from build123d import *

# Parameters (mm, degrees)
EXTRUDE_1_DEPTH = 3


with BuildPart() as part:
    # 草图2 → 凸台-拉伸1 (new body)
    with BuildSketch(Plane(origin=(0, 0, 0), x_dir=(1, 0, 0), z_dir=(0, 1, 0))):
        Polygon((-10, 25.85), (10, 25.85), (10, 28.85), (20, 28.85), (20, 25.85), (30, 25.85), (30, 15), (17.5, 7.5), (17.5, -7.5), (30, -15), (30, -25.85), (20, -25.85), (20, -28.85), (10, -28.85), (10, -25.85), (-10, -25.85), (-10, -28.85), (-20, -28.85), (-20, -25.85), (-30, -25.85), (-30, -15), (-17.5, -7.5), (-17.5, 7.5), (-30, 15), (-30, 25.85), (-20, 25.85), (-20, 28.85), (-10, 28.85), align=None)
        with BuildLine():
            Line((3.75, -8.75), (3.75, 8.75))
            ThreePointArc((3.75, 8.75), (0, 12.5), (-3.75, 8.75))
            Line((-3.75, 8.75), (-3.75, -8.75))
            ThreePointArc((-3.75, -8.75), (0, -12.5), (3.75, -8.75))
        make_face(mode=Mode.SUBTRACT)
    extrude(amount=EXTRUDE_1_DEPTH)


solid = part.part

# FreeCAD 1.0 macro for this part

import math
import FreeCAD as App
import Part
import Sketcher
from FreeCAD import Vector
Q = App.Units.Quantity

doc = App.newDocument("Part")
body = doc.addObject("PartDesign::Body", "Body")

# Sketch on XZ plane
sketch1 = body.newObject("Sketcher::SketchObject", "Sketch")
sketch1.AttachmentSupport = (doc.getObject("XZ_Plane"), [""])
sketch1.MapMode = "FlatFace"
sketch1.addGeometry([
    Part.LineSegment(Vector(10, -25.9, 0), Vector(-10, -25.9, 0)),  # 0
    Part.LineSegment(Vector(-10, -25.9, 0), Vector(-10, -28.9, 0)),  # 1
    Part.LineSegment(Vector(-10, -28.9, 0), Vector(-20, -28.9, 0)),  # 2
    Part.LineSegment(Vector(-20, -28.9, 0), Vector(-20, -25.9, 0)),  # 3
    Part.LineSegment(Vector(-20, -25.9, 0), Vector(-30, -25.9, 0)),  # 4
    Part.LineSegment(Vector(-30, -25.9, 0), Vector(-30, -15, 0)),  # 5
    Part.LineSegment(Vector(-30, -15, 0), Vector(-17.5, -7.5, 0)),  # 6
    Part.LineSegment(Vector(-17.5, -7.5, 0), Vector(-17.5, 7.5, 0)),  # 7
    Part.LineSegment(Vector(-17.5, 7.5, 0), Vector(-30, 15, 0)),  # 8
    Part.LineSegment(Vector(-30, 15, 0), Vector(-30, 25.9, 0)),  # 9
    Part.LineSegment(Vector(-30, 25.9, 0), Vector(-20, 25.9, 0)),  # 10
    Part.LineSegment(Vector(-20, 25.9, 0), Vector(-20, 28.9, 0)),  # 11
    Part.LineSegment(Vector(-20, 28.9, 0), Vector(-10, 28.9, 0)),  # 12
    Part.LineSegment(Vector(-10, 28.9, 0), Vector(-10, 25.9, 0)),  # 13
    Part.LineSegment(Vector(-10, 25.9, 0), Vector(10, 25.9, 0)),  # 14
    Part.LineSegment(Vector(10, 25.9, 0), Vector(10, 28.9, 0)),  # 15
    Part.LineSegment(Vector(10, 28.9, 0), Vector(20, 28.9, 0)),  # 16
    Part.LineSegment(Vector(20, 28.9, 0), Vector(20, 25.9, 0)),  # 17
    Part.LineSegment(Vector(20, 25.9, 0), Vector(30, 25.9, 0)),  # 18
    Part.LineSegment(Vector(30, 25.9, 0), Vector(30, 15, 0)),  # 19
    Part.LineSegment(Vector(30, 15, 0), Vector(17.5, 7.5, 0)),  # 20
    Part.LineSegment(Vector(17.5, 7.5, 0), Vector(17.5, -7.5, 0)),  # 21
    Part.LineSegment(Vector(17.5, -7.5, 0), Vector(30, -15, 0)),  # 22
    Part.LineSegment(Vector(30, -15, 0), Vector(30, -25.9, 0)),  # 23
    Part.LineSegment(Vector(30, -25.9, 0), Vector(20, -25.9, 0)),  # 24
    Part.LineSegment(Vector(20, -25.9, 0), Vector(20, -28.9, 0)),  # 25
    Part.LineSegment(Vector(20, -28.9, 0), Vector(10, -28.9, 0)),  # 26
    Part.LineSegment(Vector(10, -28.9, 0), Vector(10, -25.9, 0)),  # 27
    Part.ArcOfCircle(Part.Circle(Vector(0, 8.8, 0), Vector(0, 0, 1), 3.8), math.radians(0), math.radians(180)),  # 28
    Part.LineSegment(Vector(-3.8, 8.8, 0), Vector(-3.8, -8.8, 0)),  # 29
    Part.ArcOfCircle(Part.Circle(Vector(0, -8.8, 0), Vector(0, 0, 1), 3.8), math.radians(180), math.radians(360)),  # 30
    Part.LineSegment(Vector(3.8, -8.8, 0), Vector(3.8, 8.8, 0)),  # 31
], False)
sketch1.addConstraint([
    Sketcher.Constraint("Coincident", 0, 2, 1, 1),
    Sketcher.Constraint("Coincident", 1, 2, 2, 1),
    Sketcher.Constraint("Coincident", 2, 2, 3, 1),
    Sketcher.Constraint("Coincident", 3, 2, 4, 1),
    Sketcher.Constraint("Coincident", 4, 2, 5, 1),
    Sketcher.Constraint("Coincident", 5, 2, 6, 1),
    Sketcher.Constraint("Coincident", 6, 2, 7, 1),
    Sketcher.Constraint("Coincident", 7, 2, 8, 1),
    Sketcher.Constraint("Coincident", 8, 2, 9, 1),
    Sketcher.Constraint("Coincident", 9, 2, 10, 1),
    Sketcher.Constraint("Coincident", 10, 2, 11, 1),
    Sketcher.Constraint("Coincident", 11, 2, 12, 1),
    Sketcher.Constraint("Coincident", 12, 2, 13, 1),
    Sketcher.Constraint("Coincident", 13, 2, 14, 1),
    Sketcher.Constraint("Coincident", 14, 2, 15, 1),
    Sketcher.Constraint("Coincident", 15, 2, 16, 1),
    Sketcher.Constraint("Coincident", 16, 2, 17, 1),
    Sketcher.Constraint("Coincident", 17, 2, 18, 1),
    Sketcher.Constraint("Coincident", 18, 2, 19, 1),
    Sketcher.Constraint("Coincident", 19, 2, 20, 1),
    Sketcher.Constraint("Coincident", 20, 2, 21, 1),
    Sketcher.Constraint("Coincident", 21, 2, 22, 1),
    Sketcher.Constraint("Coincident", 22, 2, 23, 1),
    Sketcher.Constraint("Coincident", 23, 2, 24, 1),
    Sketcher.Constraint("Coincident", 24, 2, 25, 1),
    Sketcher.Constraint("Coincident", 25, 2, 26, 1),
    Sketcher.Constraint("Coincident", 26, 2, 27, 1),
    Sketcher.Constraint("Coincident", 27, 2, 0, 1),
    Sketcher.Constraint("Tangent", 28, 2, 29, 1),
    Sketcher.Constraint("Tangent", 29, 2, 30, 1),
    Sketcher.Constraint("Tangent", 30, 2, 31, 1),
    Sketcher.Constraint("Tangent", 31, 2, 28, 1),
    Sketcher.Constraint("Horizontal", 0),
    Sketcher.Constraint("Vertical", 1),
    Sketcher.Constraint("Horizontal", 2),
    Sketcher.Constraint("Vertical", 3),
    Sketcher.Constraint("Horizontal", 4),
    Sketcher.Constraint("Vertical", 5),
    Sketcher.Constraint("Vertical", 7),
    Sketcher.Constraint("Vertical", 9),
    Sketcher.Constraint("Horizontal", 10),
    Sketcher.Constraint("Vertical", 11),
    Sketcher.Constraint("Horizontal", 12),
    Sketcher.Constraint("Vertical", 13),
    Sketcher.Constraint("Horizontal", 14),
    Sketcher.Constraint("Vertical", 15),
    Sketcher.Constraint("Horizontal", 16),
    Sketcher.Constraint("Vertical", 17),
    Sketcher.Constraint("Horizontal", 18),
    Sketcher.Constraint("Vertical", 19),
    Sketcher.Constraint("Vertical", 21),
    Sketcher.Constraint("Vertical", 23),
    Sketcher.Constraint("Horizontal", 24),
    Sketcher.Constraint("Vertical", 25),
    Sketcher.Constraint("Horizontal", 26),
    Sketcher.Constraint("Vertical", 27),
    Sketcher.Constraint("Vertical", 29),
    Sketcher.Constraint("Vertical", 31),
    Sketcher.Constraint("Symmetric", 28, 3, 30, 3, -1, 1),
    Sketcher.Constraint("Symmetric", 0, 2, 14, 2, -1, 1),
    Sketcher.Constraint("Symmetric", 2, 2, 16, 2, -1, 1),
    Sketcher.Constraint("Symmetric", 4, 2, 18, 2, -1, 1),
    Sketcher.Constraint("Symmetric", 6, 2, 20, 2, -1, 1),
    Sketcher.Constraint("Symmetric", 8, 2, 22, 2, -1, 1),
    Sketcher.Constraint("Symmetric", 10, 2, 24, 2, -1, 1),
    Sketcher.Constraint("Symmetric", 12, 2, 26, 2, -1, 1),
    Sketcher.Constraint("Symmetric", 12, 2, 15, 2, -2),
    Sketcher.Constraint("Symmetric", 10, 2, 17, 2, -2),
    Sketcher.Constraint("Symmetric", 8, 2, 19, 2, -2),
    Sketcher.Constraint("Parallel", 6, 20),
    Sketcher.Constraint("Parallel", 8, 22),
    Sketcher.Constraint("Horizontal", 0, 2, 3, 2),
    Sketcher.Constraint("Horizontal", 7, 2, 20, 2),
    Sketcher.Constraint("Equal", 2, 4),
    Sketcher.Constraint("DistanceX", 0, 2, 0, 1, Q("20 mm")),
    Sketcher.Constraint("DistanceX", 2, 2, 2, 1, Q("10 mm")),
    Sketcher.Constraint("DistanceY", 1, 2, 1, 1, Q("3 mm")),
    Sketcher.Constraint("DistanceY", 7, 1, 7, 2, Q("15 mm")),
    Sketcher.Constraint("Radius", 28, Q("3.75 mm")),
    Sketcher.Constraint("DistanceY", 29, 2, 29, 1, Q("17.5 mm")),
    Sketcher.Constraint("DistanceY", 5, 2, -1, 1, Q("15 mm")),
    Sketcher.Constraint("DistanceY", 5, 1, 5, 2, Q("10.85 mm")),
    Sketcher.Constraint("DistanceX", 6, 2, -1, 1, Q("17.5 mm")),
])
pad1 = body.newObject("PartDesign::Pad", "Pad")
pad1.Profile = sketch1
pad1.Length = 3
pad1.Reversed = True

doc.recompute()
